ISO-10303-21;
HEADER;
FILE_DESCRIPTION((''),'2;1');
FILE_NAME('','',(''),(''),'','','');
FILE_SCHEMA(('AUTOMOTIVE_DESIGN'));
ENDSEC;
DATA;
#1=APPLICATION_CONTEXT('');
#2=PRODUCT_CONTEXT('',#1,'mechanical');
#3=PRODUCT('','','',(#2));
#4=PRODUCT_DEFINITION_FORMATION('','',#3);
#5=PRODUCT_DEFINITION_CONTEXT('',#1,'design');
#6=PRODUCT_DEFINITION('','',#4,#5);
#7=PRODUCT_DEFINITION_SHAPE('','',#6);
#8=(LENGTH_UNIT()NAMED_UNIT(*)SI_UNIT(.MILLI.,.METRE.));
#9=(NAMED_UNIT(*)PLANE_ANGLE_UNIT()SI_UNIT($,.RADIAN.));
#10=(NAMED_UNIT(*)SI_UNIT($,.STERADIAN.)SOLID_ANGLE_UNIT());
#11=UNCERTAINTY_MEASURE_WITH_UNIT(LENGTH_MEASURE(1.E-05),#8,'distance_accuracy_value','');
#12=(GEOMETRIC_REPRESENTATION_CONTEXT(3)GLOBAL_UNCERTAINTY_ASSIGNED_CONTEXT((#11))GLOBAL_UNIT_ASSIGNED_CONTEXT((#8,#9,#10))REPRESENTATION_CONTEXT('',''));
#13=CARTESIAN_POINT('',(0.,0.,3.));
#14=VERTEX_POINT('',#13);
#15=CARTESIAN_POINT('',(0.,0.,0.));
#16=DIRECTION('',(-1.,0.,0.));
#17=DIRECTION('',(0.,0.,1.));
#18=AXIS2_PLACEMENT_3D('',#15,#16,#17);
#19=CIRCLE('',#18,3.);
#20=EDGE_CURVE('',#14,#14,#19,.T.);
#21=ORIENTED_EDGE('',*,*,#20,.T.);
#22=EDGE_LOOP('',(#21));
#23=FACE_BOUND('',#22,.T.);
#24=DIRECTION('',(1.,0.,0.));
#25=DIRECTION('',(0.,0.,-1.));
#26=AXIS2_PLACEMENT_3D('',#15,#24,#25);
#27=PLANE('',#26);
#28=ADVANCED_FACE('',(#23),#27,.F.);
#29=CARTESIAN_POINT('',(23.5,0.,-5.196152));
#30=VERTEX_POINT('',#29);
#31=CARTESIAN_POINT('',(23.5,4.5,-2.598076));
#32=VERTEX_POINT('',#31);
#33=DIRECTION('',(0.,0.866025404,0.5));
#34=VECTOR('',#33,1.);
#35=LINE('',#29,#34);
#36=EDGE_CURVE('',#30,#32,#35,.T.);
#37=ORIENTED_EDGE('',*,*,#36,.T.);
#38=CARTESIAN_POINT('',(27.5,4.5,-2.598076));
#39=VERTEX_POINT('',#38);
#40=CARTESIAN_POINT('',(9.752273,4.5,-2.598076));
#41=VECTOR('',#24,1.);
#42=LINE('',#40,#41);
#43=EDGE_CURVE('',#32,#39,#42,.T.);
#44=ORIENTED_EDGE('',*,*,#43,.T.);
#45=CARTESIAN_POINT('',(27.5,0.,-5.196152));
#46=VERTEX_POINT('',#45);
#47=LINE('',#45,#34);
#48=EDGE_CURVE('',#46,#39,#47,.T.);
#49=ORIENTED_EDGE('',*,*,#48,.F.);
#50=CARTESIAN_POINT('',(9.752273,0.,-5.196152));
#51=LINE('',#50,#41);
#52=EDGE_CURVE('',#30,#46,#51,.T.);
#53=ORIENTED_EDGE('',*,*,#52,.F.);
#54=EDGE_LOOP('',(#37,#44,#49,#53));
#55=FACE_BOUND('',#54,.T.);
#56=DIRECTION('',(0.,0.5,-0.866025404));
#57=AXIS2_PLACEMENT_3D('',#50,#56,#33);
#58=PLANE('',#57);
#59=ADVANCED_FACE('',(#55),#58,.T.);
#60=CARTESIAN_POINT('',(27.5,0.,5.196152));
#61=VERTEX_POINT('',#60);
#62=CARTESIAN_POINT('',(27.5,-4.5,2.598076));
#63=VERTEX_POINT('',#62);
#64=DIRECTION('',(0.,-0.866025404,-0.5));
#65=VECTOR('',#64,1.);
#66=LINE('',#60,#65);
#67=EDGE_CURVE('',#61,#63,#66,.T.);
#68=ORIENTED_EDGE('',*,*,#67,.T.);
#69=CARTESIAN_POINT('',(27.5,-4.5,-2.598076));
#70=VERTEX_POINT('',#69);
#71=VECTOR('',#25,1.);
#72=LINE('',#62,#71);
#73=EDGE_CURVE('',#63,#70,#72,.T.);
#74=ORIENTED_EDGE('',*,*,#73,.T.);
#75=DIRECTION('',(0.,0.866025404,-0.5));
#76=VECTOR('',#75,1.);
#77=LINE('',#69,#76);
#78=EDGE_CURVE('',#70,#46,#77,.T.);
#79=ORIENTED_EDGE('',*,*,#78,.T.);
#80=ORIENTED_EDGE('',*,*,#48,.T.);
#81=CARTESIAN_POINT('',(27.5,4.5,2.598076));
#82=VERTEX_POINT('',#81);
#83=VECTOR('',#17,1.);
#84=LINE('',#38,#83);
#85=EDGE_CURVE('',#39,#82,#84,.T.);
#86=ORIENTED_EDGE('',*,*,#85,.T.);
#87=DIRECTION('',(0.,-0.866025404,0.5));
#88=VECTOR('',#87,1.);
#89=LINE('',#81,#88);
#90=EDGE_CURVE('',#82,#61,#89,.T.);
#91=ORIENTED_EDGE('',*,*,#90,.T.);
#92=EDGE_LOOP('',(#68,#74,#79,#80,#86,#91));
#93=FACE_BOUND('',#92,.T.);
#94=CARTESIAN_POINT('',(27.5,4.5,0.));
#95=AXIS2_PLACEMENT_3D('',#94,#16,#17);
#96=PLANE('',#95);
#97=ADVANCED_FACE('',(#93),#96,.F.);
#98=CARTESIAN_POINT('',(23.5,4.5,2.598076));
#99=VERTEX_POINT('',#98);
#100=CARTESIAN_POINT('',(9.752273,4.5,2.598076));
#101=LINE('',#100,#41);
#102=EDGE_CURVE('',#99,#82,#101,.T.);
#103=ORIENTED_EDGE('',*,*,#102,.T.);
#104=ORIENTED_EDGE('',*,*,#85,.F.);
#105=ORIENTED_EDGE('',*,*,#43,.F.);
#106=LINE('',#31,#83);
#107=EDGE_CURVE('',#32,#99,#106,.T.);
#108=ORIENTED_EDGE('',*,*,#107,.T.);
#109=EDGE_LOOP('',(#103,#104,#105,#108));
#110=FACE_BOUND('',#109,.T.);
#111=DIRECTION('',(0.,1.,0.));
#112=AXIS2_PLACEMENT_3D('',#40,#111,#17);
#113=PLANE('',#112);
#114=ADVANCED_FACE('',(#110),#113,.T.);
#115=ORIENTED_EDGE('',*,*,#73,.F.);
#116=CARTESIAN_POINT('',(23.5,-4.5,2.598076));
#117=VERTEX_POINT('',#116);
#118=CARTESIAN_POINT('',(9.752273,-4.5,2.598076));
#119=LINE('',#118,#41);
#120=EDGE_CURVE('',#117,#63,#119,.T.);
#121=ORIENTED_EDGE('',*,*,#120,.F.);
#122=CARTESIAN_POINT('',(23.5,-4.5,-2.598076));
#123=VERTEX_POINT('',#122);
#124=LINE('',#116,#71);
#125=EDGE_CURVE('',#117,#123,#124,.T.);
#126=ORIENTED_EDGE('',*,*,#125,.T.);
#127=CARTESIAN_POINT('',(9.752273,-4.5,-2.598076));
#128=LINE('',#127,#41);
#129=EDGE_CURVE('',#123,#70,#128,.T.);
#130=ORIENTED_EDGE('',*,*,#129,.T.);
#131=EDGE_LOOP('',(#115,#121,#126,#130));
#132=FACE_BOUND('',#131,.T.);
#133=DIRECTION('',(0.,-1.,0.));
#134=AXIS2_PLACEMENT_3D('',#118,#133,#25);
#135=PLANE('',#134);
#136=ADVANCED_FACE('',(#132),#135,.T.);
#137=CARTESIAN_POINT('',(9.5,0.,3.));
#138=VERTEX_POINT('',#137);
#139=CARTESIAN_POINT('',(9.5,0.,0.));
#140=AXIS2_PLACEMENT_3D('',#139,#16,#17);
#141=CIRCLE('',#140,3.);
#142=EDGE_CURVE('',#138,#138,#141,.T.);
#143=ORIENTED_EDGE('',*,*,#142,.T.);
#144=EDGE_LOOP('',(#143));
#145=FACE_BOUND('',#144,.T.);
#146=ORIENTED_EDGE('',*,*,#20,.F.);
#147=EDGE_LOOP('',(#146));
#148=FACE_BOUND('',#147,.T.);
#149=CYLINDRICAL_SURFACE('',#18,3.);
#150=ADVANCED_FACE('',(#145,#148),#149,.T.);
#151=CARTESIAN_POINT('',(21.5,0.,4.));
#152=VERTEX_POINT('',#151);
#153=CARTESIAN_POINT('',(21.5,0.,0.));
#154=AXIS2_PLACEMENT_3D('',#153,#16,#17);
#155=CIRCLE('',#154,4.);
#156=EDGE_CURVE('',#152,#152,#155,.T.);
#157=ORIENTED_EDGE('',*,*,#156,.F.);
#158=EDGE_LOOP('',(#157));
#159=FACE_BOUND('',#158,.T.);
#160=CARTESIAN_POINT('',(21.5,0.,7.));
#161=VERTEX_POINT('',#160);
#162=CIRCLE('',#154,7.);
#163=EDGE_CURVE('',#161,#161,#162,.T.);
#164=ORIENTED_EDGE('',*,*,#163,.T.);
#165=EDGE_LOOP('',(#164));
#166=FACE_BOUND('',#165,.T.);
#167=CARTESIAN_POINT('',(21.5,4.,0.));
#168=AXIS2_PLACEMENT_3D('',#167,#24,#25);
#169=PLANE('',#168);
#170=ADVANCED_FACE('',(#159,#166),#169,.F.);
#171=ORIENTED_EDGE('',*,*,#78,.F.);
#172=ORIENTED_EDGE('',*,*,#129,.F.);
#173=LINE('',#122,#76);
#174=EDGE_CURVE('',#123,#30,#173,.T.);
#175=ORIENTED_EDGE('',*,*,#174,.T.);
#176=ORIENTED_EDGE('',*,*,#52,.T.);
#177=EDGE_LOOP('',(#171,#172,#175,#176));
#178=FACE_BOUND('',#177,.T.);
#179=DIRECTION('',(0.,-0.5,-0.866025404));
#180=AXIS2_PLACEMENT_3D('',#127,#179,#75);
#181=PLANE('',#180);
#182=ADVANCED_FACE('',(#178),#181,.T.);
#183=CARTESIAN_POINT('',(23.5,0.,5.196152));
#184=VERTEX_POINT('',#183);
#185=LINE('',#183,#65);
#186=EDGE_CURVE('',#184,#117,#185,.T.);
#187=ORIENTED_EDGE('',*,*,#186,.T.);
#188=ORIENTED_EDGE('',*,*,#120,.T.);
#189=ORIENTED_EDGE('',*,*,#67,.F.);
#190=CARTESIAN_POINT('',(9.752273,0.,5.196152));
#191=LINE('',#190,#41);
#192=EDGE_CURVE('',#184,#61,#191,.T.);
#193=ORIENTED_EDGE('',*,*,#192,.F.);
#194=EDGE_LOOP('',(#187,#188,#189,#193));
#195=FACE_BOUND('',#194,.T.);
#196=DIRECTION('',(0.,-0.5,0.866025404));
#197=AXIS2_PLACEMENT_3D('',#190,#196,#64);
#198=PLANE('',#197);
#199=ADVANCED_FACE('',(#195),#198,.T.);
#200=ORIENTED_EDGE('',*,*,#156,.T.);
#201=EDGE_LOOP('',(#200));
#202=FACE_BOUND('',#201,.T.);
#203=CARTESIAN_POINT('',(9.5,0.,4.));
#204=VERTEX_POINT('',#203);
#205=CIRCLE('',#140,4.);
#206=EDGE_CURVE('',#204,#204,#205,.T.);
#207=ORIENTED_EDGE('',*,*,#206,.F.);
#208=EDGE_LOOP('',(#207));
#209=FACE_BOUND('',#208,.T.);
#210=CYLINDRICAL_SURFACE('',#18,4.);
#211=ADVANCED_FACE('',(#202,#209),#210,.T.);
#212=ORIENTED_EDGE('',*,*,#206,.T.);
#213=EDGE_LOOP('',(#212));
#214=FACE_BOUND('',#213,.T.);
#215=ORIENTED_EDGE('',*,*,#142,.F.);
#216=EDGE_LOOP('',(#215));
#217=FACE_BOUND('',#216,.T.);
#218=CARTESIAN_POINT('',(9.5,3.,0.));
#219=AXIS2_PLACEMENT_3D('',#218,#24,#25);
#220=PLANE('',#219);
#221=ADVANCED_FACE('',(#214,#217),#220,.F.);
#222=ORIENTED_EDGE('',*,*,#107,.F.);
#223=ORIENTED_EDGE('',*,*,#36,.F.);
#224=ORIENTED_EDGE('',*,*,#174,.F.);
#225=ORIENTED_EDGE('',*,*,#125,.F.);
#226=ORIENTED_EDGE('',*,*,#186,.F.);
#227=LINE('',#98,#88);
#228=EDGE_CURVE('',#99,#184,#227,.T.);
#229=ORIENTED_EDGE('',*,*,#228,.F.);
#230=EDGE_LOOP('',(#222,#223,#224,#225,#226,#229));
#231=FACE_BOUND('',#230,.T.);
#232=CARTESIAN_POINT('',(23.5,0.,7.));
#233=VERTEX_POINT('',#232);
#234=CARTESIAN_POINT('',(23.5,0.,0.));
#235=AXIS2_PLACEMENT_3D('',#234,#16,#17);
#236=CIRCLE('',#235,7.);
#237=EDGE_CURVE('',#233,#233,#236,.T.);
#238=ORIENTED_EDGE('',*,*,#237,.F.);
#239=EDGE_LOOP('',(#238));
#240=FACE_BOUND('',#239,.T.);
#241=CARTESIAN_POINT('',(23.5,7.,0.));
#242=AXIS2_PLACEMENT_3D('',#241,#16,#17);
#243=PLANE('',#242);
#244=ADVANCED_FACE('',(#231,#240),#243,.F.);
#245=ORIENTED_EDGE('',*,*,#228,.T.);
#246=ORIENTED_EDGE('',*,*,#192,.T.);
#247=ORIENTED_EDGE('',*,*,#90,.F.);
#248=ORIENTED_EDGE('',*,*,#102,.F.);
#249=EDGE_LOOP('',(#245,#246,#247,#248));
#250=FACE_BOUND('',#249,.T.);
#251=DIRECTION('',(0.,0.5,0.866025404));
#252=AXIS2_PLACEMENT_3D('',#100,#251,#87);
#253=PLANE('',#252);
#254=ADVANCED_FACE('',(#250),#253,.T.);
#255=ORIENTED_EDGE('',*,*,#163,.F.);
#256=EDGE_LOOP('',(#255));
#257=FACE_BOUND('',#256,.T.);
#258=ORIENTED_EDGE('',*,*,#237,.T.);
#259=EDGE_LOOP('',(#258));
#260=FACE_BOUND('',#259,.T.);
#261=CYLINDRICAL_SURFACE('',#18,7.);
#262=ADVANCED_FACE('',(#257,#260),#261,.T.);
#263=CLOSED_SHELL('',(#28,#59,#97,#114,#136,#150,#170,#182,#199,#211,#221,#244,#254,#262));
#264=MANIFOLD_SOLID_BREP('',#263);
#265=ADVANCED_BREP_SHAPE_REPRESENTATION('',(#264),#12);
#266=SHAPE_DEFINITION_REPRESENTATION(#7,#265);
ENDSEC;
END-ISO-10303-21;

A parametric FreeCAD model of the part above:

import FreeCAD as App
import Part
import Sketcher

V = App.Vector
Q = App.Units.Quantity


def add_polygon(sketch, points):
    """Adds a closed chain of lines whose ends are joined by coincident constraints."""
    first, n = sketch.GeometryCount, len(points)
    for a, b in zip(points, points[1:] + points[:1]):
        sketch.addGeometry(Part.LineSegment(App.Vector(*a, 0), App.Vector(*b, 0)), False)
    for i in range(n):
        sketch.addConstraint(Sketcher.Constraint("Coincident", first + i, 2, first + (i + 1) % n, 1))

doc = App.newDocument("Part")
body = doc.addObject("PartDesign::Body", "Body")

sketch1 = body.newObject("Sketcher::SketchObject", "Sketch")
sketch1.AttachmentSupport = (doc.getObject("XY_Plane"), [""])
sketch1.MapMode = "FlatFace"
add_polygon(sketch1, [(0, 3), (0, 0), (27.5, 0), (27.5, 4.5), (23.5, 4.5), (23.5, 7), (21.5, 7), (21.5, 4), (9.5, 4), (9.5, 3)])
sketch1.addConstraint(Sketcher.Constraint("Vertical", 0))
sketch1.addConstraint(Sketcher.Constraint("Horizontal", 1))
sketch1.addConstraint(Sketcher.Constraint("Vertical", 2))
sketch1.addConstraint(Sketcher.Constraint("Horizontal", 3))
sketch1.addConstraint(Sketcher.Constraint("Vertical", 4))
sketch1.addConstraint(Sketcher.Constraint("Horizontal", 5))
sketch1.addConstraint(Sketcher.Constraint("Vertical", 6))
sketch1.addConstraint(Sketcher.Constraint("Horizontal", 7))
sketch1.addConstraint(Sketcher.Constraint("Vertical", 8))
sketch1.addConstraint(Sketcher.Constraint("Horizontal", 9))
sketch1.addConstraint(Sketcher.Constraint("Coincident", 0, 2, -1, 1))
sketch1.addConstraint(Sketcher.Constraint("Equal", 0, 6))
sketch1.addConstraint(Sketcher.Constraint("DistanceX", 3, 2, 3, 1, 4.0))
sketch1.addConstraint(Sketcher.Constraint("DistanceX", 5, 2, 5, 1, 2.0))
sketch1.addConstraint(Sketcher.Constraint("DistanceX", 7, 2, 7, 1, 12.0))
sketch1.addConstraint(Sketcher.Constraint("DistanceY", 0, 2, 0, 1, 3.0))
sketch1.addConstraint(Sketcher.Constraint("DistanceY", 8, 2, 8, 1, 1.0))
sketch1.addConstraint(Sketcher.Constraint("DistanceX", 1, 1, 1, 2, 27.5))
sketch1.addConstraint(Sketcher.Constraint("DistanceY", 2, 1, 2, 2, 4.5))
revolution = body.newObject("PartDesign::Revolution", "Revolution")
revolution.Profile = sketch1
revolution.ReferenceAxis = (sketch1, ["H_Axis"])
revolution.Angle = 360

sketch2 = body.newObject("Sketcher::SketchObject", "Sketch001")
sketch2.AttachmentSupport = (doc.getObject("YZ_Plane"), [""])
sketch2.MapMode = "FlatFace"
sketch2.AttachmentOffset = App.Placement(V(0, 0, 27.5), App.Rotation())
add_polygon(sketch2, [(4.5, 2.598076), (0, 5.196152), (-4.5, 2.598076), (-4.5, -2.598076), (0, -5.196152), (4.5, -2.598076)])
sketch2.addConstraint(Sketcher.Constraint("Vertical", 2))
sketch2.addConstraint(Sketcher.Constraint("Vertical", 5))
sketch2.addConstraint(Sketcher.Constraint("Symmetric", 0, 2, 3, 2, -1, 1))
sketch2.addConstraint(Sketcher.Constraint("Symmetric", 1, 2, 4, 2, -1, 1))
sketch2.addConstraint(Sketcher.Constraint("PointOnObject", 0, 2, -2))
sketch2.addConstraint(Sketcher.Constraint("Parallel", 0, 3))
sketch2.addConstraint(Sketcher.Constraint("Horizontal", 2, 2, 4, 2))
sketch2.addConstraint(Sketcher.Constraint("Angle", 0, Q("150 deg")))
sketch2.addConstraint(Sketcher.Constraint("DistanceX", 2, 2, 4, 2, 9.0))
sketch2.addConstraint(Sketcher.Constraint("DistanceY", 2, 2, 2, 1, 5.196152))
pad1 = body.newObject("PartDesign::Pad", "Pad")
pad1.Profile = sketch2
pad1.Length = 4
pad1.Reversed = True

doc.recompute()
